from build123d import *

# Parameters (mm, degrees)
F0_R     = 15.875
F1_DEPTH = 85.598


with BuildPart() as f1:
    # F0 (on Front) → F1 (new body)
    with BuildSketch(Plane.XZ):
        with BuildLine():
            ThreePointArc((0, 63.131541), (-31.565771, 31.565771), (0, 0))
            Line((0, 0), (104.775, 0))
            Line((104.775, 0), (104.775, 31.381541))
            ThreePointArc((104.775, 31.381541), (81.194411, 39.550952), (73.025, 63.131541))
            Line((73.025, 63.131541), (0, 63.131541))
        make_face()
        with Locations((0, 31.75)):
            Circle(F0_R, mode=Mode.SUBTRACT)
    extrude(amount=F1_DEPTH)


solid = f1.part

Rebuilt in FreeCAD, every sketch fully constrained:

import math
import FreeCAD as App
import Part
import Sketcher
Q = App.Units.Quantity

doc = App.newDocument("Part")
body = doc.addObject("PartDesign::Body", "Body")

sketch1 = body.newObject("Sketcher::SketchObject", "Sketch")
sketch1.AttachmentSupport = (doc.getObject("XZ_Plane"), [""])
sketch1.MapMode = "FlatFace"
sketch1.addGeometry([
    Part.ArcOfCircle(Part.Circle(App.Vector(0, 32, 0), App.Vector(0, 0, 1), 32), math.radians(90), math.radians(270)),
    Part.LineSegment(App.Vector(0, 0, 0), App.Vector(105, 0, 0)),
    Part.LineSegment(App.Vector(105, 0, 0), App.Vector(105, 31, 0)),
    Part.ArcOfCircle(Part.Circle(App.Vector(101, 60, 0), App.Vector(0, 0, 1), 29), math.radians(173), math.radians(277)),
    Part.LineSegment(App.Vector(73, 63, 0), App.Vector(0, 63, 0)),
    Part.Circle(App.Vector(0, 32, 0), App.Vector(0, 0, 1), 16),
], False)
sketch1.addConstraint([
    Sketcher.Constraint("Tangent", 0, 2, 1, 1),
    Sketcher.Constraint("Coincident", 1, 2, 2, 1),
    Sketcher.Constraint("Coincident", 2, 2, 3, 2),
    Sketcher.Constraint("Coincident", 3, 1, 4, 1),
    Sketcher.Constraint("Tangent", 4, 2, 0, 1),
    Sketcher.Constraint("Horizontal", 1),
    Sketcher.Constraint("Vertical", 2),
    Sketcher.Constraint("Horizontal", 4),
    Sketcher.Constraint("Coincident", 0, 2, -1, 1),
    Sketcher.Constraint("PointOnObject", 5, 3, -2),
    Sketcher.Constraint("Diameter", 5, Q("1.25 in")),
    Sketcher.Constraint("Radius", 3, Q("1.125 in")),
    Sketcher.Constraint("DistanceX", 1, 1, 1, 2, Q("4.125 in")),
    Sketcher.Constraint("DistanceX", 4, 2, 4, 1, Q("2.875 in")),
    Sketcher.Constraint("DistanceY", -1, 1, 5, 3, Q("1.25 in")),
    Sketcher.Constraint("DistanceY", 2, 2, 3, 1, Q("1.25 in")),
    Sketcher.Constraint("Radius", 0, 31.56577),
])
pad1 = body.newObject("PartDesign::Pad", "Pad")
pad1.Profile = sketch1
pad1.Length = Q("3.37 in")

doc.recompute()
